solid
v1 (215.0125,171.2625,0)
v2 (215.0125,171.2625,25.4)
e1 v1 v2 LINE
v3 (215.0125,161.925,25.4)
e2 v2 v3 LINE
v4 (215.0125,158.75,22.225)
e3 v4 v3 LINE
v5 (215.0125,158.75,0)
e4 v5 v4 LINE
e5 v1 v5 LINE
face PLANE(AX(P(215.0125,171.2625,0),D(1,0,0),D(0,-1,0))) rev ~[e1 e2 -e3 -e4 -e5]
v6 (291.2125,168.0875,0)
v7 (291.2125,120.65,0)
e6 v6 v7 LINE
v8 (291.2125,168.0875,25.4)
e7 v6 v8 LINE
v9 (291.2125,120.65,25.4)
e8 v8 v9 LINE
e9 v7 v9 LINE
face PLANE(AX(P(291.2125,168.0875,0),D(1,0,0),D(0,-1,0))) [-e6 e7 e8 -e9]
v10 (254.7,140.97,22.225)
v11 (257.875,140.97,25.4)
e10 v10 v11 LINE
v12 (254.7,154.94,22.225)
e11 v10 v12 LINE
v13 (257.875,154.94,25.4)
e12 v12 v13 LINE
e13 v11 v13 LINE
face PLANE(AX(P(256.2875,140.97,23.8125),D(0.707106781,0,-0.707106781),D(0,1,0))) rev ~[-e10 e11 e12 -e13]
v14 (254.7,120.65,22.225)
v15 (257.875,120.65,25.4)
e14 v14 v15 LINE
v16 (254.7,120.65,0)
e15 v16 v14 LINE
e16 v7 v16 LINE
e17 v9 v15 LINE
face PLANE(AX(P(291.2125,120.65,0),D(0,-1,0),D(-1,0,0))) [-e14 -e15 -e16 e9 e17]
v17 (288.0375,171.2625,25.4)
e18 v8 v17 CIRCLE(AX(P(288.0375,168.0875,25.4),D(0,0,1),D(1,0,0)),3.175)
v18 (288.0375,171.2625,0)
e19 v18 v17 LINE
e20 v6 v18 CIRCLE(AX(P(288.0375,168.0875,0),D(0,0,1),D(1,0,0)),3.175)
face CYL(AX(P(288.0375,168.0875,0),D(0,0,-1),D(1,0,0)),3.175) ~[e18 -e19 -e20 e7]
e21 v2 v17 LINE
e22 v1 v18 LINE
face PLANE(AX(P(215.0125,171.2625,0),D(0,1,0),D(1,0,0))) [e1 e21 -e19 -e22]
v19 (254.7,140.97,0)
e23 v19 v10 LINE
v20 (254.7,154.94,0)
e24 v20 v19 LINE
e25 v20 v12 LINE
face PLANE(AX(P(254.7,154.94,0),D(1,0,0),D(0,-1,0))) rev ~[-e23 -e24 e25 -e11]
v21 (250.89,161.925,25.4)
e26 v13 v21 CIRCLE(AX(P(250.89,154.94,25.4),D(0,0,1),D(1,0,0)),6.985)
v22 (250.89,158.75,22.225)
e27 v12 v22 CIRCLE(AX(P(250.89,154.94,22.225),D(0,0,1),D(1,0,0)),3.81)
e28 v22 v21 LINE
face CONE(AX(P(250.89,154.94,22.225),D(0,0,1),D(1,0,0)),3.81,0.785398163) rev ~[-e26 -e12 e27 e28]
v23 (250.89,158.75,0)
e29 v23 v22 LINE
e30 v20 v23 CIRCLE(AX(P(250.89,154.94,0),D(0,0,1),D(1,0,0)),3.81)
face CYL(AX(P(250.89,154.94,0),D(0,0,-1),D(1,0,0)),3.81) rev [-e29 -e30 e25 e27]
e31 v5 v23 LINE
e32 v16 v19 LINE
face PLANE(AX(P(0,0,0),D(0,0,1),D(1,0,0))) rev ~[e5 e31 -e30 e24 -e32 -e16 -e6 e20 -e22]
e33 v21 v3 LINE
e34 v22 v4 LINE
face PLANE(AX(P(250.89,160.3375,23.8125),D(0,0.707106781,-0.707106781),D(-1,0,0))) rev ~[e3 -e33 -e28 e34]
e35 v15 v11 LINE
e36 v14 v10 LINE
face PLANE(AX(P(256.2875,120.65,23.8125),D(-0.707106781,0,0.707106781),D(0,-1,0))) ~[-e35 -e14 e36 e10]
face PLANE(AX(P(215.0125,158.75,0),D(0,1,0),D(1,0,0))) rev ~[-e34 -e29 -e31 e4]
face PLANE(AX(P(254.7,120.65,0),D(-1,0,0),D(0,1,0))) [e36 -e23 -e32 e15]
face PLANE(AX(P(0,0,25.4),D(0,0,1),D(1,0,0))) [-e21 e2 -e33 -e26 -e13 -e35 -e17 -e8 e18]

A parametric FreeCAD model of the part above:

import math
import FreeCAD as App
import Part
import Sketcher
from FreeCAD import Vector
Q = App.Units.Quantity


def edges_at(feature, points):
    """Names of the edges that pass closest to the given points."""
    edges = feature.Shape.Edges
    near = lambda p: min(range(len(edges)), key=lambda i: edges[i].distToShape(Part.Vertex(*p))[0])
    return sorted({f"Edge{near(p) + 1}" for p in points})

doc = App.newDocument("Part")
body = doc.addObject("PartDesign::Body", "Body")

# Sketch on XY plane
sketch1 = body.newObject("Sketcher::SketchObject", "Sketch")
sketch1.AttachmentSupport = (doc.getObject("XY_Plane"), [""])
sketch1.MapMode = "FlatFace"
sketch1.addGeometry(Part.ArcOfCircle(Part.Circle(Vector(250.89, 154.94, 0), Vector(0, 0, 1), 3.81), math.radians(0), math.radians(90)), False)
sketch1.addGeometry(Part.LineSegment(Vector(254.7, 154.94, 0), Vector(254.7, 120.65, 0)), False)
sketch1.addGeometry(Part.LineSegment(Vector(254.7, 120.65, 0), Vector(291.2125, 120.65, 0)), False)
sketch1.addGeometry(Part.LineSegment(Vector(291.2125, 120.65, 0), Vector(291.2125, 168.0875, 0)), False)
sketch1.addGeometry(Part.ArcOfCircle(Part.Circle(Vector(288.0375, 168.0875, 0), Vector(0, 0, 1), 3.175), math.radians(0), math.radians(90)), False)
sketch1.addGeometry(Part.LineSegment(Vector(288.0375, 171.2625, 0), Vector(215.0125, 171.2625, 0)), False)
sketch1.addGeometry(Part.LineSegment(Vector(215.0125, 171.2625, 0), Vector(215.0125, 158.75, 0)), False)
sketch1.addGeometry(Part.LineSegment(Vector(215.0125, 158.75, 0), Vector(250.89, 158.75, 0)), False)
sketch1.addConstraint(Sketcher.Constraint("Tangent", 0, 1, 1, 1))
sketch1.addConstraint(Sketcher.Constraint("Coincident", 1, 2, 2, 1))
sketch1.addConstraint(Sketcher.Constraint("Coincident", 2, 2, 3, 1))
sketch1.addConstraint(Sketcher.Constraint("Tangent", 3, 2, 4, 1))
sketch1.addConstraint(Sketcher.Constraint("Tangent", 4, 2, 5, 1))
sketch1.addConstraint(Sketcher.Constraint("Coincident", 5, 2, 6, 1))
sketch1.addConstraint(Sketcher.Constraint("Coincident", 6, 2, 7, 1))
sketch1.addConstraint(Sketcher.Constraint("Tangent", 7, 2, 0, 2))
sketch1.addConstraint(Sketcher.Constraint("Vertical", 1))
sketch1.addConstraint(Sketcher.Constraint("Horizontal", 2))
sketch1.addConstraint(Sketcher.Constraint("Vertical", 3))
sketch1.addConstraint(Sketcher.Constraint("Horizontal", 5))
sketch1.addConstraint(Sketcher.Constraint("Vertical", 6))
sketch1.addConstraint(Sketcher.Constraint("Horizontal", 7))
sketch1.addConstraint(Sketcher.Constraint("Radius", 0, Q("0.15 in")))
sketch1.addConstraint(Sketcher.Constraint("Radius", 4, Q("0.125 in")))
sketch1.addConstraint(Sketcher.Constraint("DistanceY", 1, 2, 1, 1, Q("1.35 in")))
sketch1.addConstraint(Sketcher.Constraint("DistanceY", -1, 1, 0, 3, Q("6.1 in")))
sketch1.addConstraint(Sketcher.Constraint("DistanceX", 2, 1, 2, 2, Q("1.4375 in")))
sketch1.addConstraint(Sketcher.Constraint("DistanceX", 5, 2, 5, 1, Q("2.875 in")))
sketch1.addConstraint(Sketcher.Constraint("DistanceY", 3, 1, 3, 2, 47.4375))
sketch1.addConstraint(Sketcher.Constraint("DistanceX", -1, 1, 0, 3, 250.89))
pad1 = body.newObject("PartDesign::Pad", "Pad")
pad1.Profile = sketch1
pad1.Length = Q("1 in")
doc.recompute()

chamfer = body.newObject("PartDesign::Chamfer", "Chamfer")
chamfer.Base = (pad1, edges_at(pad1, [(254.7, 130.81, 25.4), (253.584, 157.634, 25.4), (232.951, 158.75, 25.4)]))
chamfer.Size = Q("0.125 in")

doc.recompute()
